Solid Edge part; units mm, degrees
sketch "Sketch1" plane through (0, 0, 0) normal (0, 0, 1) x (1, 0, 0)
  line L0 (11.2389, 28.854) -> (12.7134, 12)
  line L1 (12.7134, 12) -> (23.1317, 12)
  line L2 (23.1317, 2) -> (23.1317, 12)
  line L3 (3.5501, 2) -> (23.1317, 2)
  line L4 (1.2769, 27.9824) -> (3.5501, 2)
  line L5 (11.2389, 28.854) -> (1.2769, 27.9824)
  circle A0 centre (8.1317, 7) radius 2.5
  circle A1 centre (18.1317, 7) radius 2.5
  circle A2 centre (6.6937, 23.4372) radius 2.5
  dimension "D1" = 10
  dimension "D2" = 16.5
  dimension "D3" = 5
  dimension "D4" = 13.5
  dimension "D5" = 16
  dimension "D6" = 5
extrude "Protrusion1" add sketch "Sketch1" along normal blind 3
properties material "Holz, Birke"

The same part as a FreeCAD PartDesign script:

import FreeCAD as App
import Part
import Sketcher

doc = App.newDocument("Part")
params = doc.addObject("Spreadsheet::Sheet", "Params")
for row, (alias, value) in enumerate([
    ("sketch1_diameter", "5 mm"),
    ("sketch1_diameter2", "5 mm"),
    ("sketch1_diameter3", "5 mm"),
    ("sketch1_height", "10 mm"),
    ("sketch1_length", "10 mm"),
    ("pad1_length", "3 mm"),
], start=1):
    params.set(f"A{row}", alias)
    params.set(f"B{row}", "=" + value)
    params.setAlias(f"B{row}", alias)

body = doc.addObject("PartDesign::Body", "Body")

sketch1 = body.newObject("Sketcher::SketchObject", "Sketch")
sketch1.AttachmentSupport = (doc.getObject("XY_Plane"), [""])
sketch1.MapMode = "FlatFace"
sketch1.addGeometry([
    Part.LineSegment(App.Vector(12.7134, 12, 0), App.Vector(11.2389, 28.854, 0)),
    Part.LineSegment(App.Vector(11.2389, 28.854, 0), App.Vector(1.2769, 27.9824, 0)),
    Part.LineSegment(App.Vector(1.2769, 27.9824, 0), App.Vector(3.5501, 2, 0)),
    Part.LineSegment(App.Vector(3.5501, 2, 0), App.Vector(23.1317, 2, 0)),
    Part.LineSegment(App.Vector(23.1317, 2, 0), App.Vector(23.1317, 12, 0)),
    Part.LineSegment(App.Vector(23.1317, 12, 0), App.Vector(12.7134, 12, 0)),
    Part.Circle(App.Vector(8.1317, 7, 0), App.Vector(0, 0, 1), 2.5),
    Part.Circle(App.Vector(18.1317, 7, 0), App.Vector(0, 0, 1), 2.5),
    Part.Circle(App.Vector(6.6937, 23.4372, 0), App.Vector(0, 0, 1), 2.5),
], False)
sketch1.addConstraint([
    Sketcher.Constraint("Coincident", 0, 2, 1, 1),
    Sketcher.Constraint("Coincident", 1, 2, 2, 1),
    Sketcher.Constraint("Coincident", 2, 2, 3, 1),
    Sketcher.Constraint("Coincident", 3, 2, 4, 1),
    Sketcher.Constraint("Coincident", 4, 2, 5, 1),
    Sketcher.Constraint("Coincident", 5, 2, 0, 1),
    Sketcher.Constraint("Horizontal", 3),
    Sketcher.Constraint("Vertical", 4),
    Sketcher.Constraint("Horizontal", 5),
    Sketcher.Constraint("Diameter", 6, 5.0),
    Sketcher.Constraint("Diameter", 7, 5.0),
    Sketcher.Constraint("Diameter", 8, 5.0),
    Sketcher.Constraint("DistanceY", 4, 1, 4, 2, 10.0),
    Sketcher.Constraint("Distance", 1, 10.0),
    Sketcher.Constraint("DistanceY", -1, 1, 6, 3, 7.0),
    Sketcher.Constraint("DistanceY", -1, 1, 7, 3, 7.0),
    Sketcher.Constraint("DistanceY", -1, 1, 2, 2, 2.0),
    Sketcher.Constraint("DistanceX", 6, 3, 7, 3, 10.0),
    Sketcher.Constraint("DistanceX", 7, 3, 3, 2, 5.0),
    Sketcher.Constraint("DistanceX", -1, 1, 2, 2, 3.55),
    Sketcher.Constraint("DistanceX", 3, 1, 3, 2, 19.5816),
    Sketcher.Constraint("DistanceX", 5, 2, 5, 1, 10.4183),
    Sketcher.Constraint("DistanceX", -1, 1, 0, 2, 11.239),
    Sketcher.Constraint("DistanceY", -1, 1, 0, 2, 28.854),
    Sketcher.Constraint("DistanceX", -1, 1, 1, 2, 1.277),
    Sketcher.Constraint("DistanceX", 8, 3, 6, 3, 1.438),
    Sketcher.Constraint("DistanceY", -1, 1, 8, 3, 23.4372),
])
sketch1.setExpression("Constraints[9]", "Params.sketch1_diameter")
sketch1.setExpression("Constraints[10]", "Params.sketch1_diameter2")
sketch1.setExpression("Constraints[11]", "Params.sketch1_diameter3")
sketch1.setExpression("Constraints[12]", "Params.sketch1_height")
sketch1.setExpression("Constraints[13]", "Params.sketch1_length")
pad1 = body.newObject("PartDesign::Pad", "Pad")
pad1.Profile = sketch1
pad1.setExpression("Length", "Params.pad1_length")

doc.recompute()
